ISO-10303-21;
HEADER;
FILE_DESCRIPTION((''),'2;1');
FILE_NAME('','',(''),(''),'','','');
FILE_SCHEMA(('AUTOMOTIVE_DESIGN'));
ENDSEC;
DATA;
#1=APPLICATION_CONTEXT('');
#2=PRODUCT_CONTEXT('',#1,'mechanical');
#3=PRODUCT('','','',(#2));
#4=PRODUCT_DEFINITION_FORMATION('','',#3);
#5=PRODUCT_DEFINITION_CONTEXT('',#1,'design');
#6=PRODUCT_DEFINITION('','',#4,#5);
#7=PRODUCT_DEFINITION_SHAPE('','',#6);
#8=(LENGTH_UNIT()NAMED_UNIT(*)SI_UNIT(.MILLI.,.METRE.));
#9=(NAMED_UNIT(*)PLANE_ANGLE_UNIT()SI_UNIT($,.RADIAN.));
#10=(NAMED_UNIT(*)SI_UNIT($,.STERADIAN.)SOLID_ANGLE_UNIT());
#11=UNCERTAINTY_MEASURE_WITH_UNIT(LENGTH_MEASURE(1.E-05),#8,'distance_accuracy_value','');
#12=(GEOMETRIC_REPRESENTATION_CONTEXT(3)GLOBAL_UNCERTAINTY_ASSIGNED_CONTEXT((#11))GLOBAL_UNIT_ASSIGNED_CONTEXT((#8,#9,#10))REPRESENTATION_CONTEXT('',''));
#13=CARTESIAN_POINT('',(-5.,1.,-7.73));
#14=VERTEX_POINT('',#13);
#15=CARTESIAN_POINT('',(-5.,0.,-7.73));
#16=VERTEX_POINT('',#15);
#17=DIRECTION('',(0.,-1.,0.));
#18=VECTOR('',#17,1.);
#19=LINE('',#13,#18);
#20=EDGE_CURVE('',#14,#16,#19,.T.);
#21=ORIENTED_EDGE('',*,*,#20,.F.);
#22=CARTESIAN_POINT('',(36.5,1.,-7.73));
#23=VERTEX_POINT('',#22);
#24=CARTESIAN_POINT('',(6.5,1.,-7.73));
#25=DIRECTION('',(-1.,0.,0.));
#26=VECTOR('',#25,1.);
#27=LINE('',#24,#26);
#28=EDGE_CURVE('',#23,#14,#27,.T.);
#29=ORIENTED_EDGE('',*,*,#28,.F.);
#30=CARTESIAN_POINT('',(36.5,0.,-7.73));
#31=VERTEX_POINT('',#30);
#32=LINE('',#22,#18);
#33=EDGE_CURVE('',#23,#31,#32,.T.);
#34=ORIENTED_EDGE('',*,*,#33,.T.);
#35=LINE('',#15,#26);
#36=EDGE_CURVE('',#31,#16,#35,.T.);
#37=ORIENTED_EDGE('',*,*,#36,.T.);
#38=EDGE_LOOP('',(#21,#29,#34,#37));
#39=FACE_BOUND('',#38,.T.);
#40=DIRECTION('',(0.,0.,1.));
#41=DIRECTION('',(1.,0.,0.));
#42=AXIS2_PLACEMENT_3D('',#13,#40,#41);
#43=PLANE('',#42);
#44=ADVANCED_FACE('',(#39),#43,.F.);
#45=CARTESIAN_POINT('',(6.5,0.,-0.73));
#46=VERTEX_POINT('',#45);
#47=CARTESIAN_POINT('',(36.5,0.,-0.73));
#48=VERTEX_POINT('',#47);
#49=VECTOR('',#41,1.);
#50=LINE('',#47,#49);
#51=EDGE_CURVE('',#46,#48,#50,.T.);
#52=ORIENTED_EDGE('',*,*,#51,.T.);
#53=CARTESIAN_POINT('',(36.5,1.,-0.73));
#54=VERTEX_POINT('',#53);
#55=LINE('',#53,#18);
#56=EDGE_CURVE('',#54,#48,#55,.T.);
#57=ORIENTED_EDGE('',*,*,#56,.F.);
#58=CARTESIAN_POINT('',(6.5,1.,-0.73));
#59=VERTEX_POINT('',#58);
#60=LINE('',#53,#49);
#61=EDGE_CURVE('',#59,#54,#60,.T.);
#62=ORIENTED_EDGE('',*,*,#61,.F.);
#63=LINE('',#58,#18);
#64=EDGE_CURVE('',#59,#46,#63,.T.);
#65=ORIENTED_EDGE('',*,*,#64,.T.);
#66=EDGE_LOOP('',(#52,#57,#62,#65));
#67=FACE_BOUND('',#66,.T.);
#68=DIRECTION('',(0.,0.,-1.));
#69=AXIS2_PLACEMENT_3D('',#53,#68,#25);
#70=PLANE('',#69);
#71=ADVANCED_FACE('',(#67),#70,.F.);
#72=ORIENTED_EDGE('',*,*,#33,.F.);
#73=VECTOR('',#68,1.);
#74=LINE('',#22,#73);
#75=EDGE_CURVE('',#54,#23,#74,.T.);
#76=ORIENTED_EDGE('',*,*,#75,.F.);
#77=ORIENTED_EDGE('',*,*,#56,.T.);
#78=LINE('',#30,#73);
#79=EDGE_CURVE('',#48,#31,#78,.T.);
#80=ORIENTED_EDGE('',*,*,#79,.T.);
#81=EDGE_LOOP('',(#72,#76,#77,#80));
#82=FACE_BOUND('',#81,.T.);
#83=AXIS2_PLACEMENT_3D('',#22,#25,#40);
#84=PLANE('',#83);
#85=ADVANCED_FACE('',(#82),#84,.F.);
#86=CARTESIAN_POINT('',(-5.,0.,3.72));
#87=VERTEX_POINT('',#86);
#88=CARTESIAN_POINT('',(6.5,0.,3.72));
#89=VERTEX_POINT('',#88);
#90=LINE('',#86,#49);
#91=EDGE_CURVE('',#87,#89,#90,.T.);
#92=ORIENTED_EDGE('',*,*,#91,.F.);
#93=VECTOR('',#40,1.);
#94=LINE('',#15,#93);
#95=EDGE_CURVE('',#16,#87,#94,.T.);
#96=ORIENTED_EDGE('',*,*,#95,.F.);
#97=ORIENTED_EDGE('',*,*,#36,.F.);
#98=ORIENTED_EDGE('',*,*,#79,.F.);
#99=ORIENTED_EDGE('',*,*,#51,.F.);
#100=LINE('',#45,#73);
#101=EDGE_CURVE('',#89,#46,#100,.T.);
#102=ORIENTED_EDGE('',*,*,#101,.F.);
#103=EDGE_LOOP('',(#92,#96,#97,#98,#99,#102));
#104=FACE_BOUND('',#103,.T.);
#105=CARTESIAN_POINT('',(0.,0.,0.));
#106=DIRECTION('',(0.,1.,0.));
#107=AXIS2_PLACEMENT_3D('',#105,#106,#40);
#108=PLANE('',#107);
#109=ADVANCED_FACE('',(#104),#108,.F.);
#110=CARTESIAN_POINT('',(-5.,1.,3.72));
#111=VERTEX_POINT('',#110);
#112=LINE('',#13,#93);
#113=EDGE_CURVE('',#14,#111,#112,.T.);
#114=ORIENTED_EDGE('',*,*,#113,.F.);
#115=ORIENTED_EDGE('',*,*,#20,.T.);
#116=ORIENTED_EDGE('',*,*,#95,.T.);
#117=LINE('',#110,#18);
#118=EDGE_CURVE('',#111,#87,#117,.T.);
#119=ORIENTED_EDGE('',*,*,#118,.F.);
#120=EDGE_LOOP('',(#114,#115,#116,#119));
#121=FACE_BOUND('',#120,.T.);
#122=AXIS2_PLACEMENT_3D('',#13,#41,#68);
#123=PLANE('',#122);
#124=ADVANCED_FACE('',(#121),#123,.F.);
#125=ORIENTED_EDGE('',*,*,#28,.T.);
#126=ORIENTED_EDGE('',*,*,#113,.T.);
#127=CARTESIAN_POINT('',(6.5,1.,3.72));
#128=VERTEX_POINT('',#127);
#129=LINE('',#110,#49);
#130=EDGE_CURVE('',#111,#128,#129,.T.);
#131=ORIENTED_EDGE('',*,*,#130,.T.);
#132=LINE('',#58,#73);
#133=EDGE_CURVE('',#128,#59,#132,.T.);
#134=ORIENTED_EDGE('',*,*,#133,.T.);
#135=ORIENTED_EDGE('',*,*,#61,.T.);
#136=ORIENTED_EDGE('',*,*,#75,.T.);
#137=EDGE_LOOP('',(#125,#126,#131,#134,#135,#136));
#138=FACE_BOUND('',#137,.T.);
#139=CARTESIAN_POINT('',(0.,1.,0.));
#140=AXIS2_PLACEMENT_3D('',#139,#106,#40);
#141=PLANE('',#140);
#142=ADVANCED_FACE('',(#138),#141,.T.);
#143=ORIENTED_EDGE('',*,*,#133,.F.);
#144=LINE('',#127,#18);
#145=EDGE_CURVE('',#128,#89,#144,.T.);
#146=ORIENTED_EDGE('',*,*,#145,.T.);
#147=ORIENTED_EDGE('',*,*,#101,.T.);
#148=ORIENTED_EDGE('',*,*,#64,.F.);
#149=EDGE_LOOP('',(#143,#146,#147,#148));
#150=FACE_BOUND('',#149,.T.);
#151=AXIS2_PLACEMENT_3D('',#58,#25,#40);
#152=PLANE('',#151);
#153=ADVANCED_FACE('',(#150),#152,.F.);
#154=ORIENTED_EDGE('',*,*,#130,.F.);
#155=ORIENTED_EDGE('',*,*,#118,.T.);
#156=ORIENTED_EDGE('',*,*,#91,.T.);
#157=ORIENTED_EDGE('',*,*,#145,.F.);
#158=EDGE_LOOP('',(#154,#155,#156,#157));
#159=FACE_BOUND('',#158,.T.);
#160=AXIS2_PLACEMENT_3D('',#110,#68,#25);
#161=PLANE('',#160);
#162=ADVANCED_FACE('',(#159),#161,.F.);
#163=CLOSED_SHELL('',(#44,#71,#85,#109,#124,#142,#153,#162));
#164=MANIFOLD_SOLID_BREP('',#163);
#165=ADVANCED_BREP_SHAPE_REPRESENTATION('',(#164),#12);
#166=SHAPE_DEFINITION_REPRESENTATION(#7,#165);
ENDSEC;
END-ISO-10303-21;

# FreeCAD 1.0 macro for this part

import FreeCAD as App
import Part
import Sketcher
Q = App.Units.Quantity

doc = App.newDocument("Part")
body = doc.addObject("PartDesign::Body", "Body")

sketch1 = doc.addObject("Sketcher::SketchObject", "Sketch")
body.addObject(sketch1)
sketch1.AttachmentSupport = (doc.XZ_Plane, [""])
sketch1.MapMode = "FlatFace"
sketch1.addGeometry([
    Part.LineSegment(App.Vector(36.5, -7.7, 0), App.Vector(-5, -7.7, 0)),
    Part.LineSegment(App.Vector(-5, -7.7, 0), App.Vector(-5, 3.7, 0)),
    Part.LineSegment(App.Vector(-5, 3.7, 0), App.Vector(6.5, 3.7, 0)),
    Part.LineSegment(App.Vector(6.5, 3.7, 0), App.Vector(6.5, -0.7, 0)),
    Part.LineSegment(App.Vector(6.5, -0.7, 0), App.Vector(36.5, -0.7, 0)),
    Part.LineSegment(App.Vector(36.5, -0.7, 0), App.Vector(36.5, -7.7, 0)),
], False)
sketch1.addConstraint([
    Sketcher.Constraint("Coincident", 0, 2, 1, 1),
    Sketcher.Constraint("Coincident", 1, 2, 2, 1),
    Sketcher.Constraint("Coincident", 2, 2, 3, 1),
    Sketcher.Constraint("Coincident", 3, 2, 4, 1),
    Sketcher.Constraint("Coincident", 4, 2, 5, 1),
    Sketcher.Constraint("Coincident", 5, 2, 0, 1),
    Sketcher.Constraint("Horizontal", 0),
    Sketcher.Constraint("Vertical", 1),
    Sketcher.Constraint("Horizontal", 2),
    Sketcher.Constraint("Vertical", 3),
    Sketcher.Constraint("Horizontal", 4),
    Sketcher.Constraint("Vertical", 5),
    Sketcher.Constraint("DistanceX", 4, 1, 4, 2, Q("30 mm")),
    Sketcher.Constraint("DistanceY", 5, 2, 5, 1, Q("7 mm")),
    Sketcher.Constraint("DistanceX", 0, 2, 0, 1, Q("41.5 mm")),
    Sketcher.Constraint("DistanceX", 0, 2, -1, 1, Q("5 mm")),
    Sketcher.Constraint("DistanceY", 1, 1, 1, 2, Q("11.45 mm")),
    Sketcher.Constraint("DistanceY", 0, 2, -1, 1, Q("7.73 mm")),
])
pad1 = doc.addObject("PartDesign::Pad", "Pad")
body.addObject(pad1)
pad1.Profile = sketch1
pad1.Length = 1
pad1.Reversed = True

doc.recompute()
